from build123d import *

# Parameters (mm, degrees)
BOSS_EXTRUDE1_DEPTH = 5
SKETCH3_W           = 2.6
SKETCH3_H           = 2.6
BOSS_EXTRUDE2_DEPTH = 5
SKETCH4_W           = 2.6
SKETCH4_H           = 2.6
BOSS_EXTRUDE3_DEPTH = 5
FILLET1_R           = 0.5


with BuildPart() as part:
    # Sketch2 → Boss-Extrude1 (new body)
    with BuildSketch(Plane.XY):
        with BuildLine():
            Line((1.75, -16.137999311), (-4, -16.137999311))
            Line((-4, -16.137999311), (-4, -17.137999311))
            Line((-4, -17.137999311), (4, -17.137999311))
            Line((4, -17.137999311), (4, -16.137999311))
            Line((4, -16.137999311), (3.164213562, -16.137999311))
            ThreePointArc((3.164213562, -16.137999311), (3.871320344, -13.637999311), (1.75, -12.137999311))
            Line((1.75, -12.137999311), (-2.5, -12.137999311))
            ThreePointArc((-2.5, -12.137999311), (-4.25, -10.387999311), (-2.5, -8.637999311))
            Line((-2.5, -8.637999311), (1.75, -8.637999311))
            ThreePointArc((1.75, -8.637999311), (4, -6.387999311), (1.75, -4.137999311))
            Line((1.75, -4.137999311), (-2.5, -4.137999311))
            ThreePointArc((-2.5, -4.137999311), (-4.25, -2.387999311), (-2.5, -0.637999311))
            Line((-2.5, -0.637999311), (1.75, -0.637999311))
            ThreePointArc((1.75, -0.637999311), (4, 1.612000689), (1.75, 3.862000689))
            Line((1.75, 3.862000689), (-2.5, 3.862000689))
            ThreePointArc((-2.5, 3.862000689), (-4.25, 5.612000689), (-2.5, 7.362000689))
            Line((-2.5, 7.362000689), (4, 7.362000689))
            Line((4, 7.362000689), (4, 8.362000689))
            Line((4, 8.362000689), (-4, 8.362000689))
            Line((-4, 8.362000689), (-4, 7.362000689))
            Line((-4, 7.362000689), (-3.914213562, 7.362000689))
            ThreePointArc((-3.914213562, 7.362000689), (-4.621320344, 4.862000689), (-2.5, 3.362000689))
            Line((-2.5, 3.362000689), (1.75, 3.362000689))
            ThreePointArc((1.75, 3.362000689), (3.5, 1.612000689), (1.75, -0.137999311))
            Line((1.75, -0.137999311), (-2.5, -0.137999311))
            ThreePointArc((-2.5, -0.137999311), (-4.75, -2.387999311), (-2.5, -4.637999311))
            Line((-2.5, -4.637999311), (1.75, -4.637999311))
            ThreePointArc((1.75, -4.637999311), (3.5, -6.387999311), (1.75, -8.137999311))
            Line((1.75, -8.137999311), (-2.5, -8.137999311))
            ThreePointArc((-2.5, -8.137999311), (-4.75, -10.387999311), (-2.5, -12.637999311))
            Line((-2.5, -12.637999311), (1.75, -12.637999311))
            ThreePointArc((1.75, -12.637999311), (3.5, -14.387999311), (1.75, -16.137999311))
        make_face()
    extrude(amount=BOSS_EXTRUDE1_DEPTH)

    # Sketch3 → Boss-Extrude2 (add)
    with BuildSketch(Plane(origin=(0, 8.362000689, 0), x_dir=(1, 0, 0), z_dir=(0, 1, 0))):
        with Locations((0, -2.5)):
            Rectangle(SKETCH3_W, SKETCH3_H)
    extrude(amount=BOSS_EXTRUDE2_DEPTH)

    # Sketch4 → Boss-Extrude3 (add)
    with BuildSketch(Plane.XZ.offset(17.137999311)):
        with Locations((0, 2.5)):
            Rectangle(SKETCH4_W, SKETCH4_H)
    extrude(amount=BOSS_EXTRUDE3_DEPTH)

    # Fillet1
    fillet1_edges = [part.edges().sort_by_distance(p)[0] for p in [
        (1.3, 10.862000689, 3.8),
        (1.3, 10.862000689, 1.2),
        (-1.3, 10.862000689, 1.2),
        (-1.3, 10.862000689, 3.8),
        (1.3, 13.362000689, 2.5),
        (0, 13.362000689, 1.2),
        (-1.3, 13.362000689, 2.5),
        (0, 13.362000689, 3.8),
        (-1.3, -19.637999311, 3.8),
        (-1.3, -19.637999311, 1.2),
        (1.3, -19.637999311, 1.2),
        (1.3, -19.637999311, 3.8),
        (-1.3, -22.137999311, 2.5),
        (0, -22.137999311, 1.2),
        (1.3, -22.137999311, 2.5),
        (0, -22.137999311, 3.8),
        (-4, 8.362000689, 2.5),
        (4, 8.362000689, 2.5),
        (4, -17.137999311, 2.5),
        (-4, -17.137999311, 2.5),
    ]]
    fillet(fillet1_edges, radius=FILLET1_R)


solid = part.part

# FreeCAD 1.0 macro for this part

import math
import FreeCAD as App
import Part
import Sketcher
Q = App.Units.Quantity


def edges_at(feature, points):
    """Names of the edges that pass closest to the given points."""
    edges = feature.Shape.Edges
    near = lambda p: min(range(len(edges)), key=lambda i: edges[i].distToShape(Part.Vertex(*p))[0])
    return sorted({f"Edge{near(p) + 1}" for p in points})

doc = App.newDocument("Part")
body = doc.addObject("PartDesign::Body", "Body")

# Sketch on XY plane
sketch1 = doc.addObject("Sketcher::SketchObject", "Sketch")
body.addObject(sketch1)
sketch1.AttachmentSupport = (doc.XY_Plane, [""])
sketch1.MapMode = "FlatFace"
sketch1.addGeometry([
    Part.LineSegment(App.Vector(1.75, -16.14, 0), App.Vector(-4, -16.14, 0)),  # 0
    Part.LineSegment(App.Vector(-4, -16.14, 0), App.Vector(-4, -17.14, 0)),  # 1
    Part.LineSegment(App.Vector(-4, -17.14, 0), App.Vector(4, -17.14, 0)),  # 2
    Part.LineSegment(App.Vector(4, -17.14, 0), App.Vector(4, -16.14, 0)),  # 3
    Part.LineSegment(App.Vector(4, -16.14, 0), App.Vector(3.16, -16.14, 0)),  # 4
    Part.ArcOfCircle(Part.Circle(App.Vector(1.75, -14.39, 0), App.Vector(0, 0, 1), 2.25), math.radians(-51), math.radians(90)),  # 5
    Part.LineSegment(App.Vector(1.75, -12.14, 0), App.Vector(-2.5, -12.14, 0)),  # 6
    Part.ArcOfCircle(Part.Circle(App.Vector(-2.5, -10.39, 0), App.Vector(0, 0, 1), 1.75), math.radians(90), math.radians(270)),  # 7
    Part.LineSegment(App.Vector(-2.5, -8.64, 0), App.Vector(1.75, -8.64, 0)),  # 8
    Part.ArcOfCircle(Part.Circle(App.Vector(1.75, -6.39, 0), App.Vector(0, 0, 1), 2.25), math.radians(-90), math.radians(90)),  # 9
    Part.LineSegment(App.Vector(1.75, -4.14, 0), App.Vector(-2.5, -4.14, 0)),  # 10
    Part.ArcOfCircle(Part.Circle(App.Vector(-2.5, -2.39, 0), App.Vector(0, 0, 1), 1.75), math.radians(90), math.radians(270)),  # 11
    Part.LineSegment(App.Vector(-2.5, -0.64, 0), App.Vector(1.75, -0.64, 0)),  # 12
    Part.ArcOfCircle(Part.Circle(App.Vector(1.75, 1.61, 0), App.Vector(0, 0, 1), 2.25), math.radians(-90), math.radians(90)),  # 13
    Part.LineSegment(App.Vector(1.75, 3.86, 0), App.Vector(-2.5, 3.86, 0)),  # 14
    Part.ArcOfCircle(Part.Circle(App.Vector(-2.5, 5.61, 0), App.Vector(0, 0, 1), 1.75), math.radians(90), math.radians(270)),  # 15
    Part.LineSegment(App.Vector(-2.5, 7.36, 0), App.Vector(4, 7.36, 0)),  # 16
    Part.LineSegment(App.Vector(4, 7.36, 0), App.Vector(4, 8.36, 0)),  # 17
    Part.LineSegment(App.Vector(4, 8.36, 0), App.Vector(-4, 8.36, 0)),  # 18
    Part.LineSegment(App.Vector(-4, 8.36, 0), App.Vector(-4, 7.36, 0)),  # 19
    Part.LineSegment(App.Vector(-4, 7.36, 0), App.Vector(-3.91, 7.36, 0)),  # 20
    Part.ArcOfCircle(Part.Circle(App.Vector(-2.5, 5.61, 0), App.Vector(0, 0, 1), 2.25), math.radians(129), math.radians(270)),  # 21
    Part.LineSegment(App.Vector(-2.5, 3.36, 0), App.Vector(1.75, 3.36, 0)),  # 22
    Part.ArcOfCircle(Part.Circle(App.Vector(1.75, 1.61, 0), App.Vector(0, 0, 1), 1.75), math.radians(-90), math.radians(90)),  # 23
    Part.LineSegment(App.Vector(1.75, -0.14, 0), App.Vector(-2.5, -0.14, 0)),  # 24
    Part.ArcOfCircle(Part.Circle(App.Vector(-2.5, -2.39, 0), App.Vector(0, 0, 1), 2.25), math.radians(90), math.radians(270)),  # 25
    Part.LineSegment(App.Vector(-2.5, -4.64, 0), App.Vector(1.75, -4.64, 0)),  # 26
    Part.ArcOfCircle(Part.Circle(App.Vector(1.75, -6.39, 0), App.Vector(0, 0, 1), 1.75), math.radians(-90), math.radians(90)),  # 27
    Part.LineSegment(App.Vector(1.75, -8.14, 0), App.Vector(-2.5, -8.14, 0)),  # 28
    Part.ArcOfCircle(Part.Circle(App.Vector(-2.5, -10.39, 0), App.Vector(0, 0, 1), 2.25), math.radians(90), math.radians(270)),  # 29
    Part.LineSegment(App.Vector(-2.5, -12.64, 0), App.Vector(1.75, -12.64, 0)),  # 30
    Part.ArcOfCircle(Part.Circle(App.Vector(1.75, -14.39, 0), App.Vector(0, 0, 1), 1.75), math.radians(-90), math.radians(90)),  # 31
], False)
sketch1.addConstraint([
    Sketcher.Constraint("Coincident", 0, 2, 1, 1),
    Sketcher.Constraint("Coincident", 1, 2, 2, 1),
    Sketcher.Constraint("Coincident", 2, 2, 3, 1),
    Sketcher.Constraint("Coincident", 3, 2, 4, 1),
    Sketcher.Constraint("Coincident", 4, 2, 5, 1),
    Sketcher.Constraint("Tangent", 5, 2, 6, 1),
    Sketcher.Constraint("Tangent", 6, 2, 7, 2),
    Sketcher.Constraint("Tangent", 7, 1, 8, 1),
    Sketcher.Constraint("Tangent", 8, 2, 9, 1),
    Sketcher.Constraint("Tangent", 9, 2, 10, 1),
    Sketcher.Constraint("Tangent", 10, 2, 11, 2),
    Sketcher.Constraint("Tangent", 11, 1, 12, 1),
    Sketcher.Constraint("Tangent", 12, 2, 13, 1),
    Sketcher.Constraint("Tangent", 13, 2, 14, 1),
    Sketcher.Constraint("Tangent", 14, 2, 15, 2),
    Sketcher.Constraint("Tangent", 15, 1, 16, 1),
    Sketcher.Constraint("Coincident", 16, 2, 17, 1),
    Sketcher.Constraint("Coincident", 17, 2, 18, 1),
    Sketcher.Constraint("Coincident", 18, 2, 19, 1),
    Sketcher.Constraint("Coincident", 19, 2, 20, 1),
    Sketcher.Constraint("Coincident", 20, 2, 21, 1),
    Sketcher.Constraint("Tangent", 21, 2, 22, 1),
    Sketcher.Constraint("Tangent", 22, 2, 23, 2),
    Sketcher.Constraint("Tangent", 23, 1, 24, 1),
    Sketcher.Constraint("Tangent", 24, 2, 25, 1),
    Sketcher.Constraint("Tangent", 25, 2, 26, 1),
    Sketcher.Constraint("Tangent", 26, 2, 27, 2),
    Sketcher.Constraint("Tangent", 27, 1, 28, 1),
    Sketcher.Constraint("Tangent", 28, 2, 29, 1),
    Sketcher.Constraint("Tangent", 29, 2, 30, 1),
    Sketcher.Constraint("Tangent", 30, 2, 31, 2),
    Sketcher.Constraint("Tangent", 31, 1, 0, 1),
    Sketcher.Constraint("Horizontal", 0),
    Sketcher.Constraint("Vertical", 1),
    Sketcher.Constraint("Horizontal", 2),
    Sketcher.Constraint("Vertical", 3),
    Sketcher.Constraint("Horizontal", 4),
    Sketcher.Constraint("Horizontal", 6),
    Sketcher.Constraint("Horizontal", 8),
    Sketcher.Constraint("Horizontal", 10),
    Sketcher.Constraint("Horizontal", 12),
    Sketcher.Constraint("Horizontal", 14),
    Sketcher.Constraint("Horizontal", 16),
    Sketcher.Constraint("Vertical", 17),
    Sketcher.Constraint("Horizontal", 18),
    Sketcher.Constraint("Vertical", 19),
    Sketcher.Constraint("Horizontal", 20),
    Sketcher.Constraint("Horizontal", 22),
    Sketcher.Constraint("Horizontal", 24),
    Sketcher.Constraint("Horizontal", 26),
    Sketcher.Constraint("Horizontal", 28),
    Sketcher.Constraint("Horizontal", 30),
    Sketcher.Constraint("Coincident", 21, 3, 15, 3),
    Sketcher.Constraint("Coincident", 23, 3, 13, 3),
    Sketcher.Constraint("Coincident", 25, 3, 11, 3),
    Sketcher.Constraint("Coincident", 27, 3, 9, 3),
    Sketcher.Constraint("Coincident", 29, 3, 7, 3),
    Sketcher.Constraint("Coincident", 31, 3, 5, 3),
    Sketcher.Constraint("Equal", 5, 9),
    Sketcher.Constraint("Equal", 7, 11),
    Sketcher.Constraint("Equal", 9, 13),
    Sketcher.Constraint("Equal", 11, 15),
    Sketcher.Constraint("Equal", 13, 21),
    Sketcher.Constraint("Symmetric", 0, 2, 3, 2, -2),
    Sketcher.Constraint("Symmetric", 16, 2, 19, 2, -2),
    Sketcher.Constraint("Vertical", 5, 3, 9, 3),
    Sketcher.Constraint("Vertical", 7, 3, 11, 3),
    Sketcher.Constraint("Vertical", 9, 3, 13, 3),
    Sketcher.Constraint("Vertical", 11, 3, 15, 3),
    Sketcher.Constraint("Vertical", 3, 2, 16, 2),
    Sketcher.Constraint("Equal", 3, 17),
    Sketcher.Constraint("DistanceX", 2, 1, 2, 2, Q("8 mm")),
    Sketcher.Constraint("DistanceY", 1, 2, 1, 1, Q("1 mm")),
    Sketcher.Constraint("Radius", 5, Q("2.25 mm")),
    Sketcher.Constraint("Radius", 7, Q("1.75 mm")),
    Sketcher.Constraint("DistanceX", 16, 1, 16, 2, Q("6.5 mm")),
    Sketcher.Constraint("DistanceX", 0, 2, 0, 1, Q("5.75 mm")),
    Sketcher.Constraint("DistanceY", 5, 3, -1, 1, Q("14.387999 mm")),
])
pad1 = doc.addObject("PartDesign::Pad", "Pad")
body.addObject(pad1)
pad1.Profile = sketch1
pad1.Length = 5

# Sketch on XZ plane
sketch2 = doc.addObject("Sketcher::SketchObject", "Sketch001")
body.addObject(sketch2)
sketch2.AttachmentSupport = (doc.XZ_Plane, [""])
sketch2.MapMode = "FlatFace"
sketch2.AttachmentOffset = App.Placement(App.Vector(0, 0, -8.362001), App.Rotation())
sketch2.addGeometry([
    Part.LineSegment(App.Vector(-1.3, 1.2, 0), App.Vector(-1.3, 3.8, 0)),
    Part.LineSegment(App.Vector(-1.3, 3.8, 0), App.Vector(1.3, 3.8, 0)),
    Part.LineSegment(App.Vector(1.3, 3.8, 0), App.Vector(1.3, 1.2, 0)),
    Part.LineSegment(App.Vector(1.3, 1.2, 0), App.Vector(-1.3, 1.2, 0)),
], False)
sketch2.addConstraint([
    Sketcher.Constraint("Coincident", 0, 2, 1, 1),
    Sketcher.Constraint("Coincident", 1, 2, 2, 1),
    Sketcher.Constraint("Coincident", 2, 2, 3, 1),
    Sketcher.Constraint("Coincident", 3, 2, 0, 1),
    Sketcher.Constraint("Vertical", 0),
    Sketcher.Constraint("Horizontal", 1),
    Sketcher.Constraint("Vertical", 2),
    Sketcher.Constraint("Horizontal", 3),
    Sketcher.Constraint("Equal", 3, 0),
    Sketcher.Constraint("DistanceX", 1, 1, 1, 2, Q("2.6 mm")),
    Sketcher.Constraint("DistanceX", 0, 2, -1, 1, Q("1.3 mm")),
    Sketcher.Constraint("DistanceY", -1, 1, 0, 2, Q("3.8 mm")),
])
pad2 = doc.addObject("PartDesign::Pad", "Pad001")
body.addObject(pad2)
pad2.Profile = sketch2
pad2.Length = 5
pad2.Reversed = True

# Sketch on XZ plane
sketch3 = doc.addObject("Sketcher::SketchObject", "Sketch002")
body.addObject(sketch3)
sketch3.AttachmentSupport = (doc.XZ_Plane, [""])
sketch3.MapMode = "FlatFace"
sketch3.AttachmentOffset = App.Placement(App.Vector(0, 0, 17.137999), App.Rotation())
sketch3.addGeometry([
    Part.LineSegment(App.Vector(-1.3, 3.8, 0), App.Vector(-1.3, 1.2, 0)),
    Part.LineSegment(App.Vector(-1.3, 1.2, 0), App.Vector(1.3, 1.2, 0)),
    Part.LineSegment(App.Vector(1.3, 1.2, 0), App.Vector(1.3, 3.8, 0)),
    Part.LineSegment(App.Vector(1.3, 3.8, 0), App.Vector(-1.3, 3.8, 0)),
], False)
sketch3.addConstraint([
    Sketcher.Constraint("Coincident", 0, 2, 1, 1),
    Sketcher.Constraint("Coincident", 1, 2, 2, 1),
    Sketcher.Constraint("Coincident", 2, 2, 3, 1),
    Sketcher.Constraint("Coincident", 3, 2, 0, 1),
    Sketcher.Constraint("Vertical", 0),
    Sketcher.Constraint("Horizontal", 1),
    Sketcher.Constraint("Vertical", 2),
    Sketcher.Constraint("Horizontal", 3),
    Sketcher.Constraint("Equal", 3, 0),
    Sketcher.Constraint("DistanceX", 1, 1, 1, 2, Q("2.6 mm")),
    Sketcher.Constraint("DistanceX", 0, 2, -1, 1, Q("1.3 mm")),
    Sketcher.Constraint("DistanceY", -1, 1, 0, 2, Q("1.2 mm")),
])
pad3 = doc.addObject("PartDesign::Pad", "Pad002")
body.addObject(pad3)
pad3.Profile = sketch3
pad3.Length = 5
doc.recompute()

fillet = doc.addObject("PartDesign::Fillet", "Fillet")
body.addObject(fillet)
fillet.Base = (pad3, edges_at(pad3, [
    (1.3, 10.862, 3.8),
    (1.3, 10.862, 1.2),
    (-1.3, 10.862, 1.2),
    (-1.3, 10.862, 3.8),
    (1.3, 13.362, 2.5),
    (0, 13.362, 1.2),
    (-1.3, 13.362, 2.5),
    (0, 13.362, 3.8),
    (-1.3, -19.638, 3.8),
    (-1.3, -19.638, 1.2),
    (1.3, -19.638, 1.2),
    (1.3, -19.638, 3.8),
    (-1.3, -22.138, 2.5),
    (0, -22.138, 1.2),
    (1.3, -22.138, 2.5),
    (0, -22.138, 3.8),
    (-4, 8.362, 2.5),
    (4, 8.362, 2.5),
    (4, -17.138, 2.5),
    (-4, -17.138, 2.5),
]))
fillet.Radius = 0.5

doc.recompute()
